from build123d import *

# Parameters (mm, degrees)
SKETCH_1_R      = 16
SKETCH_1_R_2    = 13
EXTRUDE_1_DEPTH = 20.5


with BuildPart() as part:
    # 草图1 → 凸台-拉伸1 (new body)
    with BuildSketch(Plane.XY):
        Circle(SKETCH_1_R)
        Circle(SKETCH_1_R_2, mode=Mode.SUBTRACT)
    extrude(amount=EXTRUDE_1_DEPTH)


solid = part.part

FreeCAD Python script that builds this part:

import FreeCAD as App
import Part
import Sketcher

V = App.Vector

doc = App.newDocument("Part")
body = doc.addObject("PartDesign::Body", "Body")

sketch1 = doc.addObject("Sketcher::SketchObject", "Sketch")
body.addObject(sketch1)
sketch1.AttachmentSupport = (doc.XY_Plane, [""])
sketch1.MapMode = "FlatFace"
sketch1.addGeometry([
    Part.Circle(V(0, 0, 0), V(0, 0, 1), 16),
    Part.Circle(V(0, 0, 0), V(0, 0, 1), 13),
], False)
sketch1.addConstraint([
    Sketcher.Constraint("Coincident", 0, 3, -1, 1),
    Sketcher.Constraint("Coincident", 1, 3, -1, 1),
    Sketcher.Constraint("Diameter", 0, 32.0),
    Sketcher.Constraint("Diameter", 1, 26.0),
])
pad1 = doc.addObject("PartDesign::Pad", "Pad")
body.addObject(pad1)
pad1.Profile = sketch1
pad1.Length = 20.5

doc.recompute()
